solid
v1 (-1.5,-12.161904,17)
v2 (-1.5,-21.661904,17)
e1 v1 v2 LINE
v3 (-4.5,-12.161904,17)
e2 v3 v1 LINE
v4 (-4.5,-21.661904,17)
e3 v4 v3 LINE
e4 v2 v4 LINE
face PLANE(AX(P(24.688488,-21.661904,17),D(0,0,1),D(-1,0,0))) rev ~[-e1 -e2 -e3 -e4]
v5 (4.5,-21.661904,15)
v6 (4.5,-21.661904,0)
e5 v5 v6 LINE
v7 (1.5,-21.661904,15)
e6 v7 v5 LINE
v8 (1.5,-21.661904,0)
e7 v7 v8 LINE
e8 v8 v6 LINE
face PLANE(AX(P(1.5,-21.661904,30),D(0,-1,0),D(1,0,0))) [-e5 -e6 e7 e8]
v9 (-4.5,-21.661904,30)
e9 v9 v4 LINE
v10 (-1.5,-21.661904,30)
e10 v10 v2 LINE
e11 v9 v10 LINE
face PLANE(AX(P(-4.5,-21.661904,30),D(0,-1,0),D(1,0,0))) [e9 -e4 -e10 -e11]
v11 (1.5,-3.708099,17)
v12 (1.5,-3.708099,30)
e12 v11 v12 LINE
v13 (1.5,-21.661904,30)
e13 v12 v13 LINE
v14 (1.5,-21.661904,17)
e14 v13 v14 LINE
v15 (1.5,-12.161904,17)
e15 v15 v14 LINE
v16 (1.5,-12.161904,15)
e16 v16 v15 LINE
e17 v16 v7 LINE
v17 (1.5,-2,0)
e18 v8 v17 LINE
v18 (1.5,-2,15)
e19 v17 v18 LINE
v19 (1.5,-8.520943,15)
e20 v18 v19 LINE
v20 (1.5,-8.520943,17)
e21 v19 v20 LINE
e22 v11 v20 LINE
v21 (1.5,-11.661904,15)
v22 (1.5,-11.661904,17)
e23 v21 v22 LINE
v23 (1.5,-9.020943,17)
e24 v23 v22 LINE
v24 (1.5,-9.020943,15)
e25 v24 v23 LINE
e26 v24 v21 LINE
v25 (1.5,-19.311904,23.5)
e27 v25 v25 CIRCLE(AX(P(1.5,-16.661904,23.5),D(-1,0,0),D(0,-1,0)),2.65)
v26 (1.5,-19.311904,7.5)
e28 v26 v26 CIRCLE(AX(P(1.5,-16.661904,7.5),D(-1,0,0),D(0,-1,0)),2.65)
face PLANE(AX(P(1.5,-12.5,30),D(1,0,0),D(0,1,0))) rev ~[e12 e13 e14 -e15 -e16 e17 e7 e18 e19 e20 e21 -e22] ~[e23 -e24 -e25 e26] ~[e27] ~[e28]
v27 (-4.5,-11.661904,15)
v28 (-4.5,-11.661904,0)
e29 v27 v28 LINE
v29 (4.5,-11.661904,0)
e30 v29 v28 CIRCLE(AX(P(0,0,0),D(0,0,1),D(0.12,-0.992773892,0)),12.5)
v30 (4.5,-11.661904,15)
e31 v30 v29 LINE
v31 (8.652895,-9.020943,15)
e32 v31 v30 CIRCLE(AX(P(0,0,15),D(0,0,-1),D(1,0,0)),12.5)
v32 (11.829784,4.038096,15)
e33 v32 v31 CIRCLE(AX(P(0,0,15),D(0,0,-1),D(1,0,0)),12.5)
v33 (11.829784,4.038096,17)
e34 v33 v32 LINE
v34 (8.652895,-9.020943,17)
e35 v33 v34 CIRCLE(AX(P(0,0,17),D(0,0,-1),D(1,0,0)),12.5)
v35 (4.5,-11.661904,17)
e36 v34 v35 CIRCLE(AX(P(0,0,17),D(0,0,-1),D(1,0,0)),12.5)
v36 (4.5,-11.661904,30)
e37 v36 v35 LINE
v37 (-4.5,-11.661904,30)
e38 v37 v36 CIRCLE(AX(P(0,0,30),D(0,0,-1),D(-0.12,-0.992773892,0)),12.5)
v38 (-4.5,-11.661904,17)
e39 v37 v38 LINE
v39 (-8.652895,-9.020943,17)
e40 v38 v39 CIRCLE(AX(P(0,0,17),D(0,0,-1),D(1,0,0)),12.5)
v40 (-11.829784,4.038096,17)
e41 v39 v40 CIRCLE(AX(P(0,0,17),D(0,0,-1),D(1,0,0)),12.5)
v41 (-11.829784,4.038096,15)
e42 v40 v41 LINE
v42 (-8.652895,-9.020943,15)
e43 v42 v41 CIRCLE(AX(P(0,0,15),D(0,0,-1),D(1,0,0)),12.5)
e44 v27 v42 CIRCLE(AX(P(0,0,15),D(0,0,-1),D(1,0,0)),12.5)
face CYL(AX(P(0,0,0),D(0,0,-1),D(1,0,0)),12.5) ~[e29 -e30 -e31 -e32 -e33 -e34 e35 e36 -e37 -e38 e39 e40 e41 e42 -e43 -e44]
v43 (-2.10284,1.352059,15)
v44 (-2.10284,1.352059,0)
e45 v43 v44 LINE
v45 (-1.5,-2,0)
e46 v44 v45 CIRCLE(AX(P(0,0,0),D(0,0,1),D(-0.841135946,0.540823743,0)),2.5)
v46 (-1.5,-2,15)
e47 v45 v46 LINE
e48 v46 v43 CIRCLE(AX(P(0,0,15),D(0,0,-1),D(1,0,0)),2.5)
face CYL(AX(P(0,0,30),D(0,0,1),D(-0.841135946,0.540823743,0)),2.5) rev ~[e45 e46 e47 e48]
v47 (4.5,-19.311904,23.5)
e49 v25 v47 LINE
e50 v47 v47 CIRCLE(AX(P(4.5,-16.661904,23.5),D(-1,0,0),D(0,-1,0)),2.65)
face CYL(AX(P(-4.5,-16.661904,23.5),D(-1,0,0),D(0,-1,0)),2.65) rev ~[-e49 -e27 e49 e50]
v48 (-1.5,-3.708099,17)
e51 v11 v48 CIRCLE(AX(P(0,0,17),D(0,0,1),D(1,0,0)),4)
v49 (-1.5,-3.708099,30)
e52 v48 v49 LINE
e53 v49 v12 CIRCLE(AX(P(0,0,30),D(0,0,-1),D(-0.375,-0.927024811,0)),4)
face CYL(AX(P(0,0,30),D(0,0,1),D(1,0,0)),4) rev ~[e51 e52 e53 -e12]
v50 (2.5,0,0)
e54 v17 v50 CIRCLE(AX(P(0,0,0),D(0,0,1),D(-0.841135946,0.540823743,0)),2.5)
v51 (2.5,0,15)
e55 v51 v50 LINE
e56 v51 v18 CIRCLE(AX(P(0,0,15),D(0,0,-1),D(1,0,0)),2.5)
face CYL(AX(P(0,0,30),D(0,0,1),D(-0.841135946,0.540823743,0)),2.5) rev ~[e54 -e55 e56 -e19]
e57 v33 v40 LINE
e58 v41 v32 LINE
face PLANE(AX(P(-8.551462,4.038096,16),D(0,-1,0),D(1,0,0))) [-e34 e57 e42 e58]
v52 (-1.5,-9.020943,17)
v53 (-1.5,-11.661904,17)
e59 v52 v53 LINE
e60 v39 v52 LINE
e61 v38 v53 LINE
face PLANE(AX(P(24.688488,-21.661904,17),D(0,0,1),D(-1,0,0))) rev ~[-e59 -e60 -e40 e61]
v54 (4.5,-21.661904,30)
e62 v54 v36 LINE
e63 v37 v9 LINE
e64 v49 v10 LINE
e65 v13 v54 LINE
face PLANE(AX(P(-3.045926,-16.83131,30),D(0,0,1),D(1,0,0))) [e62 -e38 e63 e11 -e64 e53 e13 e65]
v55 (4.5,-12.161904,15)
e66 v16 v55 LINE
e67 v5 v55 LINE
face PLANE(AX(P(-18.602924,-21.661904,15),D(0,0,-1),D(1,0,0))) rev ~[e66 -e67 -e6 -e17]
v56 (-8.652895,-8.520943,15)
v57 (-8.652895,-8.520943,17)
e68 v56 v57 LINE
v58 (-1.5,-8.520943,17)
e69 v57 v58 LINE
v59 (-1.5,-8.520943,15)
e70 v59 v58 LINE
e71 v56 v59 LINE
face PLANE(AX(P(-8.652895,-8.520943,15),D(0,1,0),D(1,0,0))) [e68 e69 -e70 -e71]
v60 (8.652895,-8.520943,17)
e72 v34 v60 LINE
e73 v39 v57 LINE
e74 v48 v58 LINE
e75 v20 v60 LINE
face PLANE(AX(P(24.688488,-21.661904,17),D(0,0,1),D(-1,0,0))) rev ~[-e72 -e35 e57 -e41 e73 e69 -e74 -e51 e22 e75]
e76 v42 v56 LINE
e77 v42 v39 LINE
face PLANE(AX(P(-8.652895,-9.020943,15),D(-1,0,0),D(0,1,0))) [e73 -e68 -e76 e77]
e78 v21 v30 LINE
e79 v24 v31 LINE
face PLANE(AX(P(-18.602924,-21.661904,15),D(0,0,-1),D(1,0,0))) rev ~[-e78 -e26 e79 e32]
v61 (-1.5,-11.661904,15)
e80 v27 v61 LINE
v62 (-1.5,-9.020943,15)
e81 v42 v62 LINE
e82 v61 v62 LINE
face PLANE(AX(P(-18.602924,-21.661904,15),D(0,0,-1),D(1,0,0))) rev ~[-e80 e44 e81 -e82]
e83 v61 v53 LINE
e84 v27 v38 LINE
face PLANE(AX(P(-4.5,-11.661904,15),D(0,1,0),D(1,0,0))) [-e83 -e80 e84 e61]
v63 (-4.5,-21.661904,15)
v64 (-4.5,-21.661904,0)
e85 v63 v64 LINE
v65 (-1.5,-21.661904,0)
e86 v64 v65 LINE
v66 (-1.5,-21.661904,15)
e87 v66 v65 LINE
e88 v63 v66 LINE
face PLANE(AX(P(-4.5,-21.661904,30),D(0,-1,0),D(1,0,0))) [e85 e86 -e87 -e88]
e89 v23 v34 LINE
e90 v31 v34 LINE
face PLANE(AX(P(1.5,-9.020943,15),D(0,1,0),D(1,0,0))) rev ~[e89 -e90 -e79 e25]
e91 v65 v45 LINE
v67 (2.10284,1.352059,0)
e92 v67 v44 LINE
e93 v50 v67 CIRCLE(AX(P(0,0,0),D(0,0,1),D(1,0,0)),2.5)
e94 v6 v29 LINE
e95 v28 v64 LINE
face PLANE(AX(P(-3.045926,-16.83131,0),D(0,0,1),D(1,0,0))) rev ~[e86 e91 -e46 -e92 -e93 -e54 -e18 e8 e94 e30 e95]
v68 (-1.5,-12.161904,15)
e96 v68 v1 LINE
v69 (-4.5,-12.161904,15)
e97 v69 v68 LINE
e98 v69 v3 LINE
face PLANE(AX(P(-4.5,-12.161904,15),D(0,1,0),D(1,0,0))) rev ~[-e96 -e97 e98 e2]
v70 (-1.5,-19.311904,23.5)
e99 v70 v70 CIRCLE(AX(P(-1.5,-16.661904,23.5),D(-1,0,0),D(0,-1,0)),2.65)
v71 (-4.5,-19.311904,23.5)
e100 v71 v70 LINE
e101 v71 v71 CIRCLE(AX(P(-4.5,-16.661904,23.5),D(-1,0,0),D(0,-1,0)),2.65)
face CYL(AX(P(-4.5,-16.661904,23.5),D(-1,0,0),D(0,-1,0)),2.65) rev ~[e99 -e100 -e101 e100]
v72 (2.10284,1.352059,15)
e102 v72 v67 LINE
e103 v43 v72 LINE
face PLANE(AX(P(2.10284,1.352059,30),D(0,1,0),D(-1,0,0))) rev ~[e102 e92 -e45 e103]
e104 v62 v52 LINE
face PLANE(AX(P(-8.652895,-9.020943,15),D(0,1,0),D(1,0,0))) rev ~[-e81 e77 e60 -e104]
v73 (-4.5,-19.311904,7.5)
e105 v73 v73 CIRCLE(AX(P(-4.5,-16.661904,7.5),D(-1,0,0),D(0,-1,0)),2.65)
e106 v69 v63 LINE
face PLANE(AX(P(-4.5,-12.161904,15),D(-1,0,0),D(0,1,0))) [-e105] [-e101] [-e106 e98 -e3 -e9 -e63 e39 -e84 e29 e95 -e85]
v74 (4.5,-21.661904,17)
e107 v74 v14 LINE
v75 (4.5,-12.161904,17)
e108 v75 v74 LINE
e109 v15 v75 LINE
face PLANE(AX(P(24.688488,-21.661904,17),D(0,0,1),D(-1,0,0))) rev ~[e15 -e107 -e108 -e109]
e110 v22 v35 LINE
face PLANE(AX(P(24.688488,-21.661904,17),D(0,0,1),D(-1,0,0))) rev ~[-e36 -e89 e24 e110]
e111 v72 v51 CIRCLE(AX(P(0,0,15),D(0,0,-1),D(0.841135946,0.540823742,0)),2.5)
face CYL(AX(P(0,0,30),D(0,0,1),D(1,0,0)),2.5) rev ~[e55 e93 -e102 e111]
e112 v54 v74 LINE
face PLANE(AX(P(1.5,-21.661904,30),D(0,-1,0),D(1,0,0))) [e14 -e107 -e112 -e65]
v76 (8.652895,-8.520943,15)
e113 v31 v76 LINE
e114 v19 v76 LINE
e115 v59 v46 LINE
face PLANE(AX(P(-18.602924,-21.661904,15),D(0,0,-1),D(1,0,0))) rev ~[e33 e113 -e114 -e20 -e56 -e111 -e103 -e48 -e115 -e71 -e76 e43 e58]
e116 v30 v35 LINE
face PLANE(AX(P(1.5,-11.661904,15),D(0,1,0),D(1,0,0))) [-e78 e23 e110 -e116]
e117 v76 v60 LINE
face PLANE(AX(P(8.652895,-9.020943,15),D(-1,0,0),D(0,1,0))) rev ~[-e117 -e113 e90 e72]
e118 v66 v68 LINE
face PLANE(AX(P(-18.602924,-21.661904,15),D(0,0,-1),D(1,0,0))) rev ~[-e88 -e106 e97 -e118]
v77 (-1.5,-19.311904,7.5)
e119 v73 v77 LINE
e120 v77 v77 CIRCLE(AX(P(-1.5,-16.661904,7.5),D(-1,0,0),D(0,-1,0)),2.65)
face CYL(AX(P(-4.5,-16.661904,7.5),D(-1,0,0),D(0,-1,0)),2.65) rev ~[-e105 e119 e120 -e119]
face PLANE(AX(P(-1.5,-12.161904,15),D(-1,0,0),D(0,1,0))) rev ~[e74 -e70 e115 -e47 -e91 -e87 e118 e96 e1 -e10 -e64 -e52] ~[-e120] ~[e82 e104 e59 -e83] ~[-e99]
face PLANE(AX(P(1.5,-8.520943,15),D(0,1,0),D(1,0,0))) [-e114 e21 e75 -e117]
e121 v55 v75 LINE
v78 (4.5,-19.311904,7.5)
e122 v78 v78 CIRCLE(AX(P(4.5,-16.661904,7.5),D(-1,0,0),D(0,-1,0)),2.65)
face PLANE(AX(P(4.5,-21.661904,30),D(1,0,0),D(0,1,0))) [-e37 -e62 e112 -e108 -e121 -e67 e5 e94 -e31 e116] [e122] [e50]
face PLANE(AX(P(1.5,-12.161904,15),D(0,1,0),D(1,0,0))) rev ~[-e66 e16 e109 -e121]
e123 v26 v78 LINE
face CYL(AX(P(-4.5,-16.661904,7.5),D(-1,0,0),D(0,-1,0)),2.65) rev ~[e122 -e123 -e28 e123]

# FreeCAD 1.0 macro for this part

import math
import FreeCAD as App
import Part
import Sketcher

V = App.Vector


def add_polygon(sketch, points):
    """Adds a closed chain of lines whose ends are joined by coincident constraints."""
    first, n = sketch.GeometryCount, len(points)
    for a, b in zip(points, points[1:] + points[:1]):
        sketch.addGeometry(Part.LineSegment(App.Vector(*a, 0), App.Vector(*b, 0)), False)
    for i in range(n):
        sketch.addConstraint(Sketcher.Constraint("Coincident", first + i, 2, first + (i + 1) % n, 1))

doc = App.newDocument("Part")
params = doc.addObject("Spreadsheet::Sheet", "Params")
for row, (alias, value) in enumerate([
    ("sketch1_diameter", "25 mm"),
    ("pad1_length", "30 mm"),
    ("sketch2_radius", "2.5 mm"),
    ("sketch3_diameter", "8 mm"),
    ("sketch3_radius", "2.5 mm"),
    ("pocket2_length", "15 mm"),
    ("sketch4_width", "3 mm"),
    ("sketch4_height", "12.5 mm"),
    ("sketch5_radius", "12.5 mm"),
    ("sketch5_width", "3 mm"),
    ("sketch5_height", "10 mm"),
    ("pad2_length", "30 mm"),
    ("sketch6_height", "2 mm"),
    ("pocket4_length", "51.4 mm"),
    ("sketch7_diameter", "5.3 mm"),
    ("sketch8_width", "3 mm"),
    ("sketch8_height", "0.5 mm"),
    ("pad3_length", "2 mm"),
    ("sketch9_height", "0.5 mm"),
    ("pad4_length", "2 mm"),
], start=1):
    params.set(f"A{row}", alias)
    params.set(f"B{row}", "=" + value)
    params.setAlias(f"B{row}", alias)

body = doc.addObject("PartDesign::Body", "Body")

sketch1 = body.newObject("Sketcher::SketchObject", "Sketch")
sketch1.AttachmentSupport = (doc.getObject("XY_Plane"), [""])
sketch1.MapMode = "FlatFace"
sketch1.addGeometry(Part.Circle(V(0, 0, 0), V(0, 0, 1), 12.5), False)
sketch1.addConstraint(Sketcher.Constraint("Coincident", 0, 3, -1, 1))
sketch1.addConstraint(Sketcher.Constraint("Diameter", 0, 25.0))
sketch1.setExpression("Constraints[1]", "Params.sketch1_diameter")
pad1 = body.newObject("PartDesign::Pad", "Pad")
pad1.Profile = sketch1
pad1.setExpression("Length", "Params.pad1_length")

sketch2 = body.newObject("Sketcher::SketchObject", "Sketch001")
sketch2.AttachmentSupport = (doc.getObject("XY_Plane"), [""])
sketch2.MapMode = "FlatFace"
sketch2.AttachmentOffset = App.Placement(V(0, 0, 30), App.Rotation())
sketch2.addGeometry(Part.ArcOfCircle(Part.Circle(V(0, 0, 0), V(0, 0, 1), 2.5), math.radians(147.260268), math.radians(360)), False)
sketch2.addGeometry(Part.ArcOfCircle(Part.Circle(V(0, 0, 0), V(0, 0, 1), 2.5), math.radians(0), math.radians(32.739732)), False)
sketch2.addGeometry(Part.LineSegment(V(2.10284, 1.352059, 0), V(-2.10284, 1.352059, 0)), False)
sketch2.addConstraint(Sketcher.Constraint("Tangent", 0, 2, 1, 1))
sketch2.addConstraint(Sketcher.Constraint("Coincident", 1, 2, 2, 1))
sketch2.addConstraint(Sketcher.Constraint("Coincident", 2, 2, 0, 1))
sketch2.addConstraint(Sketcher.Constraint("Horizontal", 2))
sketch2.addConstraint(Sketcher.Constraint("Coincident", 0, 3, -1, 1))
sketch2.addConstraint(Sketcher.Constraint("Equal", 0, 1))
sketch2.addConstraint(Sketcher.Constraint("PointOnObject", 0, 2, -1))
sketch2.addConstraint(Sketcher.Constraint("Radius", 0, 2.5))
sketch2.addConstraint(Sketcher.Constraint("DistanceX", 2, 2, 2, 1, 4.20568))
sketch2.setExpression("Constraints[7]", "Params.sketch2_radius")
pocket1 = body.newObject("PartDesign::Pocket", "Pocket")
pocket1.Profile = sketch2
pocket1.Type = "ThroughAll"

sketch3 = body.newObject("Sketcher::SketchObject", "Sketch002")
sketch3.AttachmentSupport = (doc.getObject("XY_Plane"), [""])
sketch3.MapMode = "FlatFace"
sketch3.AttachmentOffset = App.Placement(V(0, 0, 30), App.Rotation())
sketch3.addGeometry(Part.Circle(V(0, 0, 0), V(0, 0, 1), 4), False)
sketch3.addGeometry(Part.LineSegment(V(-2.10284, 1.352059, 0), V(2.10284, 1.352059, 0)), False)
sketch3.addGeometry(Part.ArcOfCircle(Part.Circle(V(0, 0, 0), V(0, 0, 1), 2.5), math.radians(0), math.radians(32.739732)), False)
sketch3.addGeometry(Part.ArcOfCircle(Part.Circle(V(0, 0, 0), V(0, 0, 1), 2.5), math.radians(147.260268), math.radians(360)), False)
sketch3.addConstraint(Sketcher.Constraint("Coincident", 1, 2, 2, 2))
sketch3.addConstraint(Sketcher.Constraint("Tangent", 2, 1, 3, 2))
sketch3.addConstraint(Sketcher.Constraint("Coincident", 3, 1, 1, 1))
sketch3.addConstraint(Sketcher.Constraint("Horizontal", 1))
sketch3.addConstraint(Sketcher.Constraint("Coincident", 0, 3, -1, 1))
sketch3.addConstraint(Sketcher.Constraint("Coincident", 2, 3, -1, 1))
sketch3.addConstraint(Sketcher.Constraint("Equal", 2, 3))
sketch3.addConstraint(Sketcher.Constraint("PointOnObject", 2, 1, -1))
sketch3.addConstraint(Sketcher.Constraint("Diameter", 0, 8.0))
sketch3.addConstraint(Sketcher.Constraint("Radius", 2, 2.5))
sketch3.addConstraint(Sketcher.Constraint("DistanceX", 1, 1, 1, 2, 4.20568))
sketch3.setExpression("Constraints[8]", "Params.sketch3_diameter")
sketch3.setExpression("Constraints[9]", "Params.sketch3_radius")
pocket2 = body.newObject("PartDesign::Pocket", "Pocket001")
pocket2.Profile = sketch3
pocket2.setExpression("Length", "Params.pocket2_length")

sketch4 = body.newObject("Sketcher::SketchObject", "Sketch003")
sketch4.AttachmentSupport = (doc.getObject("XY_Plane"), [""])
sketch4.MapMode = "FlatFace"
sketch4.AttachmentOffset = App.Placement(V(0, 0, 30), App.Rotation())
add_polygon(sketch4, [(-1.5, 0), (-1.5, -12.5), (1.5, -12.5), (1.5, 0)])
sketch4.addConstraint(Sketcher.Constraint("Vertical", 0))
sketch4.addConstraint(Sketcher.Constraint("Horizontal", 1))
sketch4.addConstraint(Sketcher.Constraint("Vertical", 2))
sketch4.addConstraint(Sketcher.Constraint("Horizontal", 3))
sketch4.addConstraint(Sketcher.Constraint("Symmetric", 2, 2, 3, 2, -1, 1))
sketch4.addConstraint(Sketcher.Constraint("DistanceX", 1, 1, 1, 2, 3.0))
sketch4.addConstraint(Sketcher.Constraint("DistanceY", 0, 2, 0, 1, 12.5))
sketch4.setExpression("Constraints[9]", "Params.sketch4_width")
sketch4.setExpression("Constraints[10]", "Params.sketch4_height")
pocket3 = body.newObject("PartDesign::Pocket", "Pocket002")
pocket3.Profile = sketch4
pocket3.Type = "ThroughAll"

sketch5 = body.newObject("Sketcher::SketchObject", "Sketch004")
sketch5.AttachmentSupport = (doc.getObject("XY_Plane"), [""])
sketch5.MapMode = "FlatFace"
sketch5.AttachmentOffset = App.Placement(V(0, 0, 30), App.Rotation())
sketch5.addGeometry(Part.LineSegment(V(-4.5, -21.661904, 0), V(-1.5, -21.661904, 0)), False)
sketch5.addGeometry(Part.LineSegment(V(-1.5, -21.661904, 0), V(-1.5, -12.409674, 0)), False)
sketch5.addGeometry(Part.ArcOfCircle(Part.Circle(V(0, 0, 0), V(0, 0, 1), 12.5), math.radians(-111.100196), math.radians(-96.892103)), False)
sketch5.addGeometry(Part.LineSegment(V(-4.5, -11.661904, 0), V(-4.5, -21.661904, 0)), False)
sketch5.addGeometry(Part.LineSegment(V(4.5, -21.661904, 0), V(4.5, -11.661904, 0)), False)
sketch5.addGeometry(Part.ArcOfCircle(Part.Circle(V(0, 0, 0), V(0, 0, 1), 12.5), math.radians(-83.107897), math.radians(-68.899804)), False)
sketch5.addGeometry(Part.LineSegment(V(1.5, -12.409674, 0), V(1.5, -21.661904, 0)), False)
sketch5.addGeometry(Part.LineSegment(V(1.5, -21.661904, 0), V(4.5, -21.661904, 0)), False)
sketch5.addConstraint(Sketcher.Constraint("Coincident", 0, 2, 1, 1))
sketch5.addConstraint(Sketcher.Constraint("Coincident", 1, 2, 2, 2))
sketch5.addConstraint(Sketcher.Constraint("Coincident", 2, 1, 3, 1))
sketch5.addConstraint(Sketcher.Constraint("Coincident", 3, 2, 0, 1))
sketch5.addConstraint(Sketcher.Constraint("Coincident", 4, 2, 5, 2))
sketch5.addConstraint(Sketcher.Constraint("Coincident", 5, 1, 6, 1))
sketch5.addConstraint(Sketcher.Constraint("Coincident", 6, 2, 7, 1))
sketch5.addConstraint(Sketcher.Constraint("Coincident", 7, 2, 4, 1))
sketch5.addConstraint(Sketcher.Constraint("Horizontal", 0))
sketch5.addConstraint(Sketcher.Constraint("Vertical", 1))
sketch5.addConstraint(Sketcher.Constraint("Vertical", 3))
sketch5.addConstraint(Sketcher.Constraint("Vertical", 4))
sketch5.addConstraint(Sketcher.Constraint("Vertical", 6))
sketch5.addConstraint(Sketcher.Constraint("Horizontal", 7))
sketch5.addConstraint(Sketcher.Constraint("Coincident", 2, 3, -1, 1))
sketch5.addConstraint(Sketcher.Constraint("Coincident", 5, 3, -1, 1))
sketch5.addConstraint(Sketcher.Constraint("Equal", 2, 5))
sketch5.addConstraint(Sketcher.Constraint("Symmetric", 0, 2, 6, 2, -2))
sketch5.addConstraint(Sketcher.Constraint("Horizontal", 2, 1, 4, 2))
sketch5.addConstraint(Sketcher.Constraint("Radius", 2, 12.5))
sketch5.addConstraint(Sketcher.Constraint("DistanceX", 0, 1, 0, 2, 3.0))
sketch5.addConstraint(Sketcher.Constraint("DistanceY", 3, 2, 3, 1, 10.0))
sketch5.addConstraint(Sketcher.Constraint("DistanceX", 1, 2, 4, 2, 6.0))
sketch5.setExpression("Constraints[19]", "Params.sketch5_radius")
sketch5.setExpression("Constraints[20]", "Params.sketch5_width")
sketch5.setExpression("Constraints[21]", "Params.sketch5_height")
pad2 = body.newObject("PartDesign::Pad", "Pad001")
pad2.Profile = sketch5
pad2.setExpression("Length", "Params.pad2_length")
pad2.Reversed = True

sketch6 = body.newObject("Sketcher::SketchObject", "Sketch005")
sketch6.AttachmentSupport = (doc.getObject("XZ_Plane"), [""])
sketch6.MapMode = "FlatFace"
sketch6.AttachmentOffset = App.Placement(V(0, 0, 21.661904), App.Rotation())
add_polygon(sketch6, [(-18.602924, 17), (-18.602924, 15), (24.688488, 15), (24.688488, 17)])
sketch6.addConstraint(Sketcher.Constraint("Vertical", 0))
sketch6.addConstraint(Sketcher.Constraint("Horizontal", 1))
sketch6.addConstraint(Sketcher.Constraint("Vertical", 2))
sketch6.addConstraint(Sketcher.Constraint("Horizontal", 3))
sketch6.addConstraint(Sketcher.Constraint("DistanceY", 0, 2, 0, 1, 2.0))
sketch6.addConstraint(Sketcher.Constraint("DistanceY", -1, 1, 0, 2, 15.0))
sketch6.addConstraint(Sketcher.Constraint("DistanceX", 1, 1, 1, 2, 43.291412))
sketch6.addConstraint(Sketcher.Constraint("DistanceX", 0, 2, -1, 1, 18.602924))
sketch6.setExpression("Constraints[8]", "Params.sketch6_height")
pocket4 = body.newObject("PartDesign::Pocket", "Pocket003")
pocket4.Profile = sketch6
pocket4.setExpression("Length", "Params.pocket4_length")
pocket4.Midplane = True

sketch7 = body.newObject("Sketcher::SketchObject", "Sketch006")
sketch7.AttachmentSupport = (doc.getObject("YZ_Plane"), [""])
sketch7.MapMode = "FlatFace"
sketch7.AttachmentOffset = App.Placement(V(0, 0, -4.5), App.Rotation())
sketch7.addGeometry(Part.Circle(V(-16.661904, 23.5, 0), V(0, 0, 1), 2.65), False)
sketch7.addGeometry(Part.Circle(V(-16.661904, 7.5, 0), V(0, 0, 1), 2.65), False)
sketch7.addConstraint(Sketcher.Constraint("Equal", 0, 1))
sketch7.addConstraint(Sketcher.Constraint("Vertical", 0, 3, 1, 3))
sketch7.addConstraint(Sketcher.Constraint("Diameter", 0, 5.3))
sketch7.addConstraint(Sketcher.Constraint("DistanceY", 1, 3, 0, 3, 16.0))
sketch7.addConstraint(Sketcher.Constraint("DistanceY", -1, 1, 0, 3, 23.5))
sketch7.addConstraint(Sketcher.Constraint("DistanceX", 0, 3, -1, 1, 16.661904))
sketch7.setExpression("Constraints[2]", "Params.sketch7_diameter")
pocket5 = body.newObject("PartDesign::Pocket", "Pocket004")
pocket5.Profile = sketch7
pocket5.Type = "ThroughAll"
pocket5.Reversed = True

sketch8 = body.newObject("Sketcher::SketchObject", "Sketch007")
sketch8.AttachmentSupport = (doc.getObject("XY_Plane"), [""])
sketch8.MapMode = "FlatFace"
sketch8.AttachmentOffset = App.Placement(V(0, 0, 15), App.Rotation())
add_polygon(sketch8, [(-4.5, -11.661904), (-4.5, -12.161904), (-1.5, -12.161904), (-1.5, -11.661904)])
add_polygon(sketch8, [(1.5, -11.661904), (1.5, -12.161904), (4.5, -12.161904), (4.5, -11.661904)])
sketch8.addConstraint(Sketcher.Constraint("Vertical", 0))
sketch8.addConstraint(Sketcher.Constraint("Horizontal", 1))
sketch8.addConstraint(Sketcher.Constraint("Vertical", 2))
sketch8.addConstraint(Sketcher.Constraint("Horizontal", 3))
sketch8.addConstraint(Sketcher.Constraint("Vertical", 4))
sketch8.addConstraint(Sketcher.Constraint("Horizontal", 5))
sketch8.addConstraint(Sketcher.Constraint("Vertical", 6))
sketch8.addConstraint(Sketcher.Constraint("Horizontal", 7))
sketch8.addConstraint(Sketcher.Constraint("Symmetric", 1, 2, 4, 2, -2))
sketch8.addConstraint(Sketcher.Constraint("Symmetric", 3, 2, 6, 2, -2))
sketch8.addConstraint(Sketcher.Constraint("DistanceX", 1, 1, 1, 2, 3.0))
sketch8.addConstraint(Sketcher.Constraint("DistanceY", 0, 2, 0, 1, 0.5))
sketch8.addConstraint(Sketcher.Constraint("DistanceX", 1, 2, 4, 2, 3.0))
sketch8.addConstraint(Sketcher.Constraint("DistanceY", 0, 2, -1, 1, 12.161904))
sketch8.setExpression("Constraints[18]", "Params.sketch8_width")
sketch8.setExpression("Constraints[19]", "Params.sketch8_height")
pad3 = body.newObject("PartDesign::Pad", "Pad002")
pad3.Profile = sketch8
pad3.setExpression("Length", "Params.pad3_length")

sketch9 = body.newObject("Sketcher::SketchObject", "Sketch008")
sketch9.AttachmentSupport = (doc.getObject("XY_Plane"), [""])
sketch9.MapMode = "FlatFace"
sketch9.AttachmentOffset = App.Placement(V(0, 0, 15), App.Rotation())
add_polygon(sketch9, [(1.5, -8.520943), (1.5, -9.020943), (8.652895, -9.020943), (8.652895, -8.520943)])
add_polygon(sketch9, [(-8.652895, -8.520943), (-8.652895, -9.020943), (-1.5, -9.020943), (-1.5, -8.520943)])
sketch9.addConstraint(Sketcher.Constraint("Vertical", 0))
sketch9.addConstraint(Sketcher.Constraint("Horizontal", 1))
sketch9.addConstraint(Sketcher.Constraint("Vertical", 2))
sketch9.addConstraint(Sketcher.Constraint("Horizontal", 3))
sketch9.addConstraint(Sketcher.Constraint("Vertical", 4))
sketch9.addConstraint(Sketcher.Constraint("Horizontal", 5))
sketch9.addConstraint(Sketcher.Constraint("Vertical", 6))
sketch9.addConstraint(Sketcher.Constraint("Horizontal", 7))
sketch9.addConstraint(Sketcher.Constraint("Symmetric", 1, 2, 4, 2, -2))
sketch9.addConstraint(Sketcher.Constraint("Symmetric", 3, 2, 6, 2, -2))
sketch9.addConstraint(Sketcher.Constraint("DistanceY", 0, 2, 0, 1, 0.5))
sketch9.addConstraint(Sketcher.Constraint("DistanceX", 5, 2, 0, 2, 3.0))
sketch9.addConstraint(Sketcher.Constraint("DistanceX", 1, 1, 1, 2, 7.152895))
sketch9.addConstraint(Sketcher.Constraint("DistanceY", 0, 2, -1, 1, 9.020943))
sketch9.setExpression("Constraints[18]", "Params.sketch9_height")
pad4 = body.newObject("PartDesign::Pad", "Pad003")
pad4.Profile = sketch9
pad4.setExpression("Length", "Params.pad4_length")

doc.recompute()
